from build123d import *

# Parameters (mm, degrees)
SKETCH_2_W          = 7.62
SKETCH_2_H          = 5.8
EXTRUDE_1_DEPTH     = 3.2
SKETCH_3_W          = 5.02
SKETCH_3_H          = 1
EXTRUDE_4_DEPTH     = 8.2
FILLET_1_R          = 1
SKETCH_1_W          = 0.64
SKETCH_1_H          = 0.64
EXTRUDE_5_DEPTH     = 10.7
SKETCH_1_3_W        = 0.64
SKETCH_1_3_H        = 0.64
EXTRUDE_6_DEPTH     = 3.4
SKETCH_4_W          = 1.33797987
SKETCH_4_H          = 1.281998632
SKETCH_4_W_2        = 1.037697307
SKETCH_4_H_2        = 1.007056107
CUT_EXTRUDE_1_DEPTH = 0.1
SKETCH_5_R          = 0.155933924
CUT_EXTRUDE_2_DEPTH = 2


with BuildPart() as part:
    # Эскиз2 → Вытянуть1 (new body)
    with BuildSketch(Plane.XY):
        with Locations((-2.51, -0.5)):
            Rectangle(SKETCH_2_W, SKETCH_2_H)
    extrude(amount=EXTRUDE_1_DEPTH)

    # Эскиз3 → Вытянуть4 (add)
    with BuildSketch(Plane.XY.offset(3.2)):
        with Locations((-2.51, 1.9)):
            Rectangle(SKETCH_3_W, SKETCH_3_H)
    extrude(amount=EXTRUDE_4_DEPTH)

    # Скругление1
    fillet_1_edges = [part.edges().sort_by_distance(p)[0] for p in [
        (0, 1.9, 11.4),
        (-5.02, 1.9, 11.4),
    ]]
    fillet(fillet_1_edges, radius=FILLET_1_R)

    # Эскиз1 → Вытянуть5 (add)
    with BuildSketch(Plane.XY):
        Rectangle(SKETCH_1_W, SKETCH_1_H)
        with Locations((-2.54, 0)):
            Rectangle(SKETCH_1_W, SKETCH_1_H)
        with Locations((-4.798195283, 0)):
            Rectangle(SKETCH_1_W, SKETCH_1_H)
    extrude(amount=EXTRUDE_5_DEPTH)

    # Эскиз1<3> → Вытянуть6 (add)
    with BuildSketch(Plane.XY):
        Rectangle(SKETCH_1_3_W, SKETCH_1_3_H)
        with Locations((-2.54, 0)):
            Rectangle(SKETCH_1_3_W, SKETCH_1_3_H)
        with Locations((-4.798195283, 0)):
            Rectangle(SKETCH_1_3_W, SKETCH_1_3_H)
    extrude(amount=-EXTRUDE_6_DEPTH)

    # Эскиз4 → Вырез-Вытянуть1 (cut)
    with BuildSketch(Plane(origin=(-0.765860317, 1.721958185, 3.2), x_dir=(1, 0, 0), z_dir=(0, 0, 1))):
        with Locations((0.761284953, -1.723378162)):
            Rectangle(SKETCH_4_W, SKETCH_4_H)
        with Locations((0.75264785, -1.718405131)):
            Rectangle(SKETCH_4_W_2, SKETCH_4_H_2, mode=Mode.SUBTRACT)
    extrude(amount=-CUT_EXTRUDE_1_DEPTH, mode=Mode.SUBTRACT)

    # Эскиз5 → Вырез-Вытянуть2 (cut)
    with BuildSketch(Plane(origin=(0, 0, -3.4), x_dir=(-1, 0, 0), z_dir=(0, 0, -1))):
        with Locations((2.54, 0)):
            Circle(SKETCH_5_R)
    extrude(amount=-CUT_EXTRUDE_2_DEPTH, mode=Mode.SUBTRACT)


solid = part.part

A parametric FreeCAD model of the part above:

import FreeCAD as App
import Part
import Sketcher
from FreeCAD import Vector
Q = App.Units.Quantity


def edges_at(feature, points):
    """Names of the edges that pass closest to the given points."""
    edges = feature.Shape.Edges
    near = lambda p: min(range(len(edges)), key=lambda i: edges[i].distToShape(Part.Vertex(*p))[0])
    return sorted({f"Edge{near(p) + 1}" for p in points})


def add_polygon(sketch, points):
    """Adds a closed chain of lines whose ends are joined by coincident constraints."""
    first, n = sketch.GeometryCount, len(points)
    for a, b in zip(points, points[1:] + points[:1]):
        sketch.addGeometry(Part.LineSegment(App.Vector(*a, 0), App.Vector(*b, 0)), False)
    for i in range(n):
        sketch.addConstraint(Sketcher.Constraint("Coincident", first + i, 2, first + (i + 1) % n, 1))

doc = App.newDocument("Part")
params = doc.addObject("Spreadsheet::Sheet", "Params")
for row, (alias, value) in enumerate([
    ("sketch1_height", "5.8 mm"),
    ("sketch1_width", "7.62 mm"),
    ("pad1_length", "3.2 mm"),
    ("sketch2_height", "1 mm"),
    ("sketch2_width", "5.02 mm"),
    ("pad2_length", "8.2 mm"),
    ("fillet_radius", "1 mm"),
    ("sketch3_width", "0.64 mm"),
    ("pad3_length", "10.7 mm"),
    ("sketch4_width", "0.64 mm"),
    ("pad4_length", "3.4 mm"),
    ("pocket1_length", "0.1 mm"),
    ("pocket2_length", "2 mm"),
], start=1):
    params.set(f"A{row}", alias)
    params.set(f"B{row}", "=" + value)
    params.setAlias(f"B{row}", alias)

body = doc.addObject("PartDesign::Body", "Body")

sketch1 = body.newObject("Sketcher::SketchObject", "Sketch")
sketch1.AttachmentSupport = (doc.getObject("XY_Plane"), [""])
sketch1.MapMode = "FlatFace"
add_polygon(sketch1, [(-6, 2), (-6, -3), (1, -3), (1, 2)])
sketch1.addConstraint([
    Sketcher.Constraint("Vertical", 0),
    Sketcher.Constraint("Horizontal", 1),
    Sketcher.Constraint("Vertical", 2),
    Sketcher.Constraint("Horizontal", 3),
    Sketcher.Constraint("DistanceY", 0, 2, 0, 1, Q("5.8 mm")),
    Sketcher.Constraint("DistanceX", 1, 1, 1, 2, Q("7.62 mm")),
    Sketcher.Constraint("DistanceY", 0, 2, -1, 1, Q("3.4 mm")),
    Sketcher.Constraint("DistanceX", -1, 1, 1, 2, Q("1.3 mm")),
])
sketch1.setExpression("Constraints[8]", "Params.sketch1_height")
sketch1.setExpression("Constraints[9]", "Params.sketch1_width")
pad1 = body.newObject("PartDesign::Pad", "Pad")
pad1.Profile = sketch1
pad1.setExpression("Length", "Params.pad1_length")

sketch2 = body.newObject("Sketcher::SketchObject", "Sketch001")
sketch2.AttachmentSupport = (doc.getObject("XY_Plane"), [""])
sketch2.MapMode = "FlatFace"
sketch2.AttachmentOffset = App.Placement(Vector(0, 0, 3.2), App.Rotation())
add_polygon(sketch2, [(-5, 2.4), (-5, 1.4), (0, 1.4), (0, 2.4)])
sketch2.addConstraint([
    Sketcher.Constraint("Vertical", 0),
    Sketcher.Constraint("Horizontal", 1),
    Sketcher.Constraint("Vertical", 2),
    Sketcher.Constraint("Horizontal", 3),
    Sketcher.Constraint("PointOnObject", 1, 2, -2),
    Sketcher.Constraint("DistanceY", 0, 2, 0, 1, Q("1 mm")),
    Sketcher.Constraint("DistanceX", 1, 1, 1, 2, Q("5.02 mm")),
    Sketcher.Constraint("DistanceY", -1, 1, 0, 2, Q("1.4 mm")),
])
sketch2.setExpression("Constraints[9]", "Params.sketch2_height")
sketch2.setExpression("Constraints[10]", "Params.sketch2_width")
pad2 = body.newObject("PartDesign::Pad", "Pad001")
pad2.Profile = sketch2
pad2.setExpression("Length", "Params.pad2_length")
doc.recompute()

fillet = body.newObject("PartDesign::Fillet", "Fillet")
fillet.Base = (pad2, edges_at(pad2, [(0, 1.9, 11.4), (-5.02, 1.9, 11.4)]))
fillet.setExpression("Radius", "Params.fillet_radius")

sketch3 = body.newObject("Sketcher::SketchObject", "Sketch002")
sketch3.AttachmentSupport = (doc.getObject("XY_Plane"), [""])
sketch3.MapMode = "FlatFace"
add_polygon(sketch3, [(-0.3, 0.3), (-0.3, -0.3), (0.3, -0.3), (0.3, 0.3)])
add_polygon(sketch3, [(-2.9, 0.3), (-2.9, -0.3), (-2.2, -0.3), (-2.2, 0.3)])
add_polygon(sketch3, [(-5.1, 0.3), (-5.1, -0.3), (-4.5, -0.3), (-4.5, 0.3)])
sketch3.addConstraint([
    Sketcher.Constraint("Vertical", 0),
    Sketcher.Constraint("Horizontal", 1),
    Sketcher.Constraint("Vertical", 2),
    Sketcher.Constraint("Horizontal", 3),
    Sketcher.Constraint("Vertical", 4),
    Sketcher.Constraint("Horizontal", 5),
    Sketcher.Constraint("Vertical", 6),
    Sketcher.Constraint("Horizontal", 7),
    Sketcher.Constraint("Vertical", 8),
    Sketcher.Constraint("Horizontal", 9),
    Sketcher.Constraint("Vertical", 10),
    Sketcher.Constraint("Horizontal", 11),
    Sketcher.Constraint("Symmetric", 0, 2, 2, 2, -1, 1),
    Sketcher.Constraint("Horizontal", 1, 2, 4, 2),
    Sketcher.Constraint("Horizontal", 3, 2, 6, 2),
    Sketcher.Constraint("Horizontal", 5, 2, 8, 2),
    Sketcher.Constraint("Horizontal", 7, 2, 10, 2),
    Sketcher.Constraint("Equal", 3, 5),
    Sketcher.Constraint("Equal", 7, 9),
    Sketcher.Constraint("Equal", 11, 0),
    Sketcher.Constraint("DistanceX", 1, 1, 1, 2, Q("0.64 mm")),
    Sketcher.Constraint("DistanceX", 5, 2, 0, 2, Q("1.9 mm")),
    Sketcher.Constraint("DistanceX", 8, 2, -1, 1, Q("5.118195 mm")),
])
sketch3.setExpression("Constraints[32]", "Params.sketch3_width")
pad3 = body.newObject("PartDesign::Pad", "Pad002")
pad3.Profile = sketch3
pad3.setExpression("Length", "Params.pad3_length")

sketch4 = body.newObject("Sketcher::SketchObject", "Sketch003")
sketch4.AttachmentSupport = (doc.getObject("XY_Plane"), [""])
sketch4.MapMode = "FlatFace"
add_polygon(sketch4, [(-0.3, 0.3), (-0.3, -0.3), (0.3, -0.3), (0.3, 0.3)])
add_polygon(sketch4, [(-2.9, 0.3), (-2.9, -0.3), (-2.2, -0.3), (-2.2, 0.3)])
add_polygon(sketch4, [(-5.1, 0.3), (-5.1, -0.3), (-4.5, -0.3), (-4.5, 0.3)])
sketch4.addConstraint([
    Sketcher.Constraint("Vertical", 0),
    Sketcher.Constraint("Horizontal", 1),
    Sketcher.Constraint("Vertical", 2),
    Sketcher.Constraint("Horizontal", 3),
    Sketcher.Constraint("Vertical", 4),
    Sketcher.Constraint("Horizontal", 5),
    Sketcher.Constraint("Vertical", 6),
    Sketcher.Constraint("Horizontal", 7),
    Sketcher.Constraint("Vertical", 8),
    Sketcher.Constraint("Horizontal", 9),
    Sketcher.Constraint("Vertical", 10),
    Sketcher.Constraint("Horizontal", 11),
    Sketcher.Constraint("Symmetric", 0, 2, 2, 2, -1, 1),
    Sketcher.Constraint("Horizontal", 1, 2, 4, 2),
    Sketcher.Constraint("Horizontal", 3, 2, 6, 2),
    Sketcher.Constraint("Horizontal", 5, 2, 8, 2),
    Sketcher.Constraint("Horizontal", 7, 2, 10, 2),
    Sketcher.Constraint("Equal", 3, 5),
    Sketcher.Constraint("Equal", 7, 9),
    Sketcher.Constraint("Equal", 11, 0),
    Sketcher.Constraint("DistanceX", 1, 1, 1, 2, Q("0.64 mm")),
    Sketcher.Constraint("DistanceX", 5, 2, 0, 2, Q("1.9 mm")),
    Sketcher.Constraint("DistanceX", 8, 2, -1, 1, Q("5.118195 mm")),
])
sketch4.setExpression("Constraints[32]", "Params.sketch4_width")
pad4 = body.newObject("PartDesign::Pad", "Pad003")
pad4.Profile = sketch4
pad4.setExpression("Length", "Params.pad4_length")
pad4.Reversed = True

sketch5 = body.newObject("Sketcher::SketchObject", "Sketch004")
sketch5.AttachmentSupport = (doc.getObject("XY_Plane"), [""])
sketch5.MapMode = "FlatFace"
sketch5.AttachmentOffset = App.Placement(Vector(0, 0, 3.2), App.Rotation())
add_polygon(sketch5, [(-0.7, 0.6), (-0.7, -0.6), (0.7, -0.6), (0.7, 0.6)])
add_polygon(sketch5, [(0.5, -0.5), (-0.5, -0.5), (-0.5, 0.5), (0.5, 0.5)])
sketch5.addConstraint([
    Sketcher.Constraint("Vertical", 0),
    Sketcher.Constraint("Horizontal", 1),
    Sketcher.Constraint("Vertical", 2),
    Sketcher.Constraint("Horizontal", 3),
    Sketcher.Constraint("Horizontal", 4),
    Sketcher.Constraint("Vertical", 5),
    Sketcher.Constraint("Horizontal", 6),
    Sketcher.Constraint("Vertical", 7),
    Sketcher.Constraint("DistanceY", 0, 2, 0, 1, Q("1.281999 mm")),
    Sketcher.Constraint("DistanceX", 1, 1, 1, 2, Q("1.33798 mm")),
    Sketcher.Constraint("DistanceY", 5, 2, 3, 2, Q("0.132498 mm")),
    Sketcher.Constraint("DistanceX", 3, 2, 6, 2, Q("1.179201 mm")),
    Sketcher.Constraint("DistanceX", 4, 2, 4, 1, Q("1.037697 mm")),
    Sketcher.Constraint("DistanceY", 5, 1, 5, 2, Q("1.007056 mm")),
    Sketcher.Constraint("DistanceY", 0, 2, -1, 1, Q("0.642419 mm")),
    Sketcher.Constraint("DistanceX", 4, 2, -1, 1, Q("0.532061 mm")),
])
pocket1 = body.newObject("PartDesign::Pocket", "Pocket")
pocket1.Profile = sketch5
pocket1.setExpression("Length", "Params.pocket1_length")

sketch6 = body.newObject("Sketcher::SketchObject", "Sketch005")
sketch6.AttachmentSupport = (doc.getObject("XY_Plane"), [""])
sketch6.MapMode = "FlatFace"
sketch6.AttachmentOffset = App.Placement(Vector(0, 0, -3.4), App.Rotation())
sketch6.addGeometry(Part.Circle(Vector(-2.54, 0, 0), Vector(0, 0, 1), 0.16), False)
sketch6.addConstraint([
    Sketcher.Constraint("PointOnObject", 0, 3, -1),
    Sketcher.Constraint("DistanceX", 0, 3, -1, 1, Q("2.54 mm")),
    Sketcher.Constraint("Diameter", 0, Q("0.311868 mm")),
])
pocket2 = body.newObject("PartDesign::Pocket", "Pocket001")
pocket2.Profile = sketch6
pocket2.setExpression("Length", "Params.pocket2_length")
pocket2.Reversed = True

doc.recompute()
